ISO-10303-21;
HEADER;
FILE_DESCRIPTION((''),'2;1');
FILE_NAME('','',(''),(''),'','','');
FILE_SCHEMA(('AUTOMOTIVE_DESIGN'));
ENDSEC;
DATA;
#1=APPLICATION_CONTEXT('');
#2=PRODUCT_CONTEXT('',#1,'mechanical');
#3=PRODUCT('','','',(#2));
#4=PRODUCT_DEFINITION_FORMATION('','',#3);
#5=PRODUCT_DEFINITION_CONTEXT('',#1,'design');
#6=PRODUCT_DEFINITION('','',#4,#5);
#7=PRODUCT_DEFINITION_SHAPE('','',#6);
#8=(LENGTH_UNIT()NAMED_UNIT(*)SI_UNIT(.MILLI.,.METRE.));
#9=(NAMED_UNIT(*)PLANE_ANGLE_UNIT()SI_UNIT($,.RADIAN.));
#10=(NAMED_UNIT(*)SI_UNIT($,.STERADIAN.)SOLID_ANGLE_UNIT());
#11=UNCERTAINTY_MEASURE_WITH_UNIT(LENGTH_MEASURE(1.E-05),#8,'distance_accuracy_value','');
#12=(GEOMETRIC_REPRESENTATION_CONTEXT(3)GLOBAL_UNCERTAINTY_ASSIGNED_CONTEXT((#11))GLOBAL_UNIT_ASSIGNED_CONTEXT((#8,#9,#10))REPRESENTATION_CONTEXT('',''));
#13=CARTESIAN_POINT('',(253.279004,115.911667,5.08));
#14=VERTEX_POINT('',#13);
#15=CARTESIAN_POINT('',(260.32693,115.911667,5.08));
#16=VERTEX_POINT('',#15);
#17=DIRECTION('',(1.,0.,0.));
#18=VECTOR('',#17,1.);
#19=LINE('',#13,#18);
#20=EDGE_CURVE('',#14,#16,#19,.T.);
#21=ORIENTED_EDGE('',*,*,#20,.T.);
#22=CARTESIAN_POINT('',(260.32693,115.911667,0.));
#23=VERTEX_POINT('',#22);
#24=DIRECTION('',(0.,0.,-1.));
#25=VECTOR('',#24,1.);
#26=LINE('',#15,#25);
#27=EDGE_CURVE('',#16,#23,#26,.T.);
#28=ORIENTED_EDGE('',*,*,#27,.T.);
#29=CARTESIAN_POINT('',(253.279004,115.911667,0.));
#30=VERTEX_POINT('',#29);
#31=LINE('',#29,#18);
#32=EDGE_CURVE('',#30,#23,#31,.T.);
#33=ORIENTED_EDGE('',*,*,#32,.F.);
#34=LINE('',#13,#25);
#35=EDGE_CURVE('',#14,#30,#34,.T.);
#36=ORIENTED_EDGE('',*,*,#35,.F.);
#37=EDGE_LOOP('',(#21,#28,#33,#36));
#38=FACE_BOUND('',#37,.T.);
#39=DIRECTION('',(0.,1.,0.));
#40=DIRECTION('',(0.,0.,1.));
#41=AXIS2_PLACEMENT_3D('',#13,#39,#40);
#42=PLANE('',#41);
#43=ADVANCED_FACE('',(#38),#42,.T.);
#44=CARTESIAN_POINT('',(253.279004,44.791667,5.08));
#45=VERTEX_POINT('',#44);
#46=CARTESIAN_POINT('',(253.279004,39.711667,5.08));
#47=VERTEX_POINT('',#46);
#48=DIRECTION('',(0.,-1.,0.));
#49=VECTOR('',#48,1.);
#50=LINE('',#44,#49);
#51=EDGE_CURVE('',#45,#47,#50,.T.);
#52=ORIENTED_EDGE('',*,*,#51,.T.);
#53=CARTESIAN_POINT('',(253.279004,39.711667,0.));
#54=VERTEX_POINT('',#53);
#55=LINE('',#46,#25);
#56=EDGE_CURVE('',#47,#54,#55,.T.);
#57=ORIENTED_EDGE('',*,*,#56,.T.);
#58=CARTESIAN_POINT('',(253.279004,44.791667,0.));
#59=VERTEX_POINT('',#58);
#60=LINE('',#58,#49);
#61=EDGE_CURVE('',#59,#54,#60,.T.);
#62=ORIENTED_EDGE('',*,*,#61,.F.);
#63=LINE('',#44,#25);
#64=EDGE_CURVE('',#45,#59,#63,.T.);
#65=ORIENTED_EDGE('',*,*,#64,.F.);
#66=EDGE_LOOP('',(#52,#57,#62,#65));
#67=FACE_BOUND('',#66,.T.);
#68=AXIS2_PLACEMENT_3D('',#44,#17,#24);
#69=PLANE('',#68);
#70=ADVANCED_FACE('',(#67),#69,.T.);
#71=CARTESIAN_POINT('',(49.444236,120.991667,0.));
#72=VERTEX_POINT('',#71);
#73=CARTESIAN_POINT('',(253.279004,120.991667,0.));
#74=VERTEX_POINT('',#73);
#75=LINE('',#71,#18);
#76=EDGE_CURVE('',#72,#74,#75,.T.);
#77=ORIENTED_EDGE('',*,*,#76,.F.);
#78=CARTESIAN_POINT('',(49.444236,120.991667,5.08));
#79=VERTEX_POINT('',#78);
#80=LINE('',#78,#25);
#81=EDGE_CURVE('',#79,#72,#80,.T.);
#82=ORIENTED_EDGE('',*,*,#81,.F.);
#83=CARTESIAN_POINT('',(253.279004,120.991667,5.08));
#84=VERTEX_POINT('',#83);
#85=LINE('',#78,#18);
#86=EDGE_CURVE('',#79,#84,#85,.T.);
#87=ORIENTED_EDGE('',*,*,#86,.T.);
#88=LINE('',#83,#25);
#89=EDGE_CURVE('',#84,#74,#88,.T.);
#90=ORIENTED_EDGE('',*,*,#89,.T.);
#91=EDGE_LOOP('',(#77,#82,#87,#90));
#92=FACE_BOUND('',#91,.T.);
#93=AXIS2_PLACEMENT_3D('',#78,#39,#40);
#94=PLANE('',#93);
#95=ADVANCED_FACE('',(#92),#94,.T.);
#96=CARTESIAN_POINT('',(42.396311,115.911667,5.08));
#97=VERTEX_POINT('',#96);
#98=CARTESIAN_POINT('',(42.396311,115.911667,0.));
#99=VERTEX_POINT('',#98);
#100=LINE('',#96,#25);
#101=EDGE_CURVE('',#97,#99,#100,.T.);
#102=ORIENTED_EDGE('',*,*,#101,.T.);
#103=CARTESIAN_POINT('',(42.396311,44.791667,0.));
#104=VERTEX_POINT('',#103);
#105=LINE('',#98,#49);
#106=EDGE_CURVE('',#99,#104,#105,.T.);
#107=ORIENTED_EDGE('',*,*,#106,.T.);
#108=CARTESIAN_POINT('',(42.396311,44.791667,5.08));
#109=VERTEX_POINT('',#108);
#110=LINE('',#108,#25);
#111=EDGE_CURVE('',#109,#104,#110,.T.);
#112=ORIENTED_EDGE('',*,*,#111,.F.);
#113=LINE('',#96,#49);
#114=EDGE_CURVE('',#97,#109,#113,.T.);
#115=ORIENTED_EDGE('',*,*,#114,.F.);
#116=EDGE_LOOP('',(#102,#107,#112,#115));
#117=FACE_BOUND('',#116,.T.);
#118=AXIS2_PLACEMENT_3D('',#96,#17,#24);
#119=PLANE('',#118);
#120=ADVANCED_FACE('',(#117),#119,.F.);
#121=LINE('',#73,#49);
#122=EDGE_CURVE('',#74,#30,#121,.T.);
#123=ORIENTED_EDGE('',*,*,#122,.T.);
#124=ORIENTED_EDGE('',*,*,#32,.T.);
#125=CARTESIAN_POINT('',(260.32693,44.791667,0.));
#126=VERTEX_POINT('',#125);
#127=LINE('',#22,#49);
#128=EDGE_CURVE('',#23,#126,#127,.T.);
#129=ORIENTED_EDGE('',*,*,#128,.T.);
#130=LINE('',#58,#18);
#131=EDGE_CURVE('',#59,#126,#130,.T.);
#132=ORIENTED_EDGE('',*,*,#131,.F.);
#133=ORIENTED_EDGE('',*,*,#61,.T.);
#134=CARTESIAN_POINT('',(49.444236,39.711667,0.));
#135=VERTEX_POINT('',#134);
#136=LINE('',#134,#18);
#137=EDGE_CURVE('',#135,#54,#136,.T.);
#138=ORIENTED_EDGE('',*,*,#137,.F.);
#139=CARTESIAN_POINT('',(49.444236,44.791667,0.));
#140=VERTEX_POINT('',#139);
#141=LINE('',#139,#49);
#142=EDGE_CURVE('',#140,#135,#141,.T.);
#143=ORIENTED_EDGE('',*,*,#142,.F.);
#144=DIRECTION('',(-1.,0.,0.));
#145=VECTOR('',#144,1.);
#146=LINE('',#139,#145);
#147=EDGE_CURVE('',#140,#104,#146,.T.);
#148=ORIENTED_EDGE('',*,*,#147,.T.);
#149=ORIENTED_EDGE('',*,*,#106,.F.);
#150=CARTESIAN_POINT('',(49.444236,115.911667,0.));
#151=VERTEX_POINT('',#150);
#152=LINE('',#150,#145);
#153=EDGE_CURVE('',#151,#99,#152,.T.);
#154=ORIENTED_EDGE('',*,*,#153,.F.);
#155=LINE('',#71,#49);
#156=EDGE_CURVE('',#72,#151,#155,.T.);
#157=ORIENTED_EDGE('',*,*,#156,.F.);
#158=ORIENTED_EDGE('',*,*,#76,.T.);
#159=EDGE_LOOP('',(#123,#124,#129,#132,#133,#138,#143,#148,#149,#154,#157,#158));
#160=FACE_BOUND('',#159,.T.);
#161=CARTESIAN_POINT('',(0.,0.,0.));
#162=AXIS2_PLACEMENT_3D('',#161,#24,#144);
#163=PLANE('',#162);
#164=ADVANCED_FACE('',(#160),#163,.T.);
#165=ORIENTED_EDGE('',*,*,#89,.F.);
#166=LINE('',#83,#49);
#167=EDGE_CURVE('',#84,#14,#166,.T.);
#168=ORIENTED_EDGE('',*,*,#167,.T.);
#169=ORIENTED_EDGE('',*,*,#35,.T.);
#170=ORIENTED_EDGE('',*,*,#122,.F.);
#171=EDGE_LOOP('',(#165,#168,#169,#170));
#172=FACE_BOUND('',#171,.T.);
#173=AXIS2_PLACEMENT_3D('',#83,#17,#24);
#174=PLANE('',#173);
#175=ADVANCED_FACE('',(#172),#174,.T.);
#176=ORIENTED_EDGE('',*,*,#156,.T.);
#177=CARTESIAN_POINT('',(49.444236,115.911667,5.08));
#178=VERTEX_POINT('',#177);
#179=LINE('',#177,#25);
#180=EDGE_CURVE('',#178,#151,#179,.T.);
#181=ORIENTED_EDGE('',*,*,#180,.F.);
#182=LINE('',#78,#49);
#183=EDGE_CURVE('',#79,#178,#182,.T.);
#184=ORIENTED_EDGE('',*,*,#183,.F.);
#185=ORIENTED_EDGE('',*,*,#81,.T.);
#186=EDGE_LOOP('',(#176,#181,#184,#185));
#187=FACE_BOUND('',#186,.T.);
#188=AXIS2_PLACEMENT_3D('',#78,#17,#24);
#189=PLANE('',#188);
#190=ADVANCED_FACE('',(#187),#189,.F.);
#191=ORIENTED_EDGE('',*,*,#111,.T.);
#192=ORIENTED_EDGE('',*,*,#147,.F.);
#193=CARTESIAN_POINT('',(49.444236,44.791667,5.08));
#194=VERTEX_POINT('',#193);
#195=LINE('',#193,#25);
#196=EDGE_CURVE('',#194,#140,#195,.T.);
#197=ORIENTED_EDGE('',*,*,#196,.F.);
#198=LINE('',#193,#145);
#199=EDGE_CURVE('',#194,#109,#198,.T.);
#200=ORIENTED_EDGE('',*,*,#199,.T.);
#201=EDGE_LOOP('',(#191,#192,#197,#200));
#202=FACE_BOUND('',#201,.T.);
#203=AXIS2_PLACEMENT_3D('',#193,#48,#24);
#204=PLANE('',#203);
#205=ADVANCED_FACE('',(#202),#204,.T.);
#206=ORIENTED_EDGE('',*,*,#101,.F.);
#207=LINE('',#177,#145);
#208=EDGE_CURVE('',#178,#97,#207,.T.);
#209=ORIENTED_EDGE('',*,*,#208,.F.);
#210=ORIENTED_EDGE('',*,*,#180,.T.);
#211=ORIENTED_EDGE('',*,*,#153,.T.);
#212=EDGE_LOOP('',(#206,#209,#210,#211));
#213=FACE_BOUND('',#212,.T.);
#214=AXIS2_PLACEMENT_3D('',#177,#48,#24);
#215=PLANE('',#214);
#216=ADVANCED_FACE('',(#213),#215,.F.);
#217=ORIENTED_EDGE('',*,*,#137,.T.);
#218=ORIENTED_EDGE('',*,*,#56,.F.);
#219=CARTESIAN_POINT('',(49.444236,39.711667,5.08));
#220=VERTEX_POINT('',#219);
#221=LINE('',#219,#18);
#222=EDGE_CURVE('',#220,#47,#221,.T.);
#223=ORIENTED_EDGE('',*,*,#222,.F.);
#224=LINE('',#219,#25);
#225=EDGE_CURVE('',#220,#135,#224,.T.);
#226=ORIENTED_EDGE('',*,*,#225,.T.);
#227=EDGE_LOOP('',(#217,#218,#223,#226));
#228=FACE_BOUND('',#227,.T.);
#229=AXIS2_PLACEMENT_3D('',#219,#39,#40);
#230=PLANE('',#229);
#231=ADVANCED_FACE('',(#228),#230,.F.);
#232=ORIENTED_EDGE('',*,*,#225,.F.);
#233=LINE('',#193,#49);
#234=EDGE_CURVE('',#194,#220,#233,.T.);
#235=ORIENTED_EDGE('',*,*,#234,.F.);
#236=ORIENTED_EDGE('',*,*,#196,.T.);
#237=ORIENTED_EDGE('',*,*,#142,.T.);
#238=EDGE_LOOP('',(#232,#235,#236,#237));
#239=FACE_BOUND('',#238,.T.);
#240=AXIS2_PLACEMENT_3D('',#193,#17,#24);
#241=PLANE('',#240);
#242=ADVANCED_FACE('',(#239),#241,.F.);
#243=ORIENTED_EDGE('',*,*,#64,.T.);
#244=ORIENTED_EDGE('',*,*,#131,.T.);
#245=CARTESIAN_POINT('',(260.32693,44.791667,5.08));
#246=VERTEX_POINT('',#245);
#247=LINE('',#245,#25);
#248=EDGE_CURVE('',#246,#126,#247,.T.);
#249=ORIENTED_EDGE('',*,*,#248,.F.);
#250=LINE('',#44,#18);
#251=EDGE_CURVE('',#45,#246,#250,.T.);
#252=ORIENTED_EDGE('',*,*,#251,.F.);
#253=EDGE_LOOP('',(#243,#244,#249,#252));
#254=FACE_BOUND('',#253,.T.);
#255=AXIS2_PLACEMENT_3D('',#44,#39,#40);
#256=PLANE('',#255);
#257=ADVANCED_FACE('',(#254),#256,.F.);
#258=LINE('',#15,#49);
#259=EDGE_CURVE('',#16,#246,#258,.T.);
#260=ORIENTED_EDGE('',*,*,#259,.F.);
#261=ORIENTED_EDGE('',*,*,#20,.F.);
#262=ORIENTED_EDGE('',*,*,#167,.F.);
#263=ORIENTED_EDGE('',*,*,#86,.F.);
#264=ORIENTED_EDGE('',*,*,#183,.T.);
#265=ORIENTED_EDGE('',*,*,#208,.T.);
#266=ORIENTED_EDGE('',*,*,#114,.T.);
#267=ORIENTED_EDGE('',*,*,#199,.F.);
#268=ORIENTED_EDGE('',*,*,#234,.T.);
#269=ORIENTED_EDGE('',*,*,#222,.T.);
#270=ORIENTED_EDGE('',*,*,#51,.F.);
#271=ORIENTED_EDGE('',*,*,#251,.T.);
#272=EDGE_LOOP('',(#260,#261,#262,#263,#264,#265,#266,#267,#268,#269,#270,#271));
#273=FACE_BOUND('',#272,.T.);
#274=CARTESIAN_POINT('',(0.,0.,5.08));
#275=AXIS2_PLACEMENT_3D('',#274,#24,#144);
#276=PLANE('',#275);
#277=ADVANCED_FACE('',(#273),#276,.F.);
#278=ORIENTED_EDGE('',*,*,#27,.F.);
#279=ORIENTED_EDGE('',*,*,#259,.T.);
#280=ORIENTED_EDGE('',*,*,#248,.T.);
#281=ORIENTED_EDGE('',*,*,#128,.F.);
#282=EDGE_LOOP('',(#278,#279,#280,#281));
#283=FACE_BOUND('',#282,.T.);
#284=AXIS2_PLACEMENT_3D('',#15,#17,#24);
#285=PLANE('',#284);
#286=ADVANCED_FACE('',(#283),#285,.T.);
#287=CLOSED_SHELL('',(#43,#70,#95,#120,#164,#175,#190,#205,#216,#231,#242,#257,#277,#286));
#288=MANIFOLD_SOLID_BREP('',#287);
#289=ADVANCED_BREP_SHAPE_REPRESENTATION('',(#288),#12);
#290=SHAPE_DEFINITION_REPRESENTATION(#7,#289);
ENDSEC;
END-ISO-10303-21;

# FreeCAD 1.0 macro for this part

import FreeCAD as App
import Part
import Sketcher
Q = App.Units.Quantity


def add_polygon(sketch, points):
    """Adds a closed chain of lines whose ends are joined by coincident constraints."""
    first, n = sketch.GeometryCount, len(points)
    for a, b in zip(points, points[1:] + points[:1]):
        sketch.addGeometry(Part.LineSegment(App.Vector(*a, 0), App.Vector(*b, 0)), False)
    for i in range(n):
        sketch.addConstraint(Sketcher.Constraint("Coincident", first + i, 2, first + (i + 1) % n, 1))

doc = App.newDocument("Part")
body = doc.addObject("PartDesign::Body", "Body")

# Sketch on XY plane
sketch1 = body.newObject("Sketcher::SketchObject", "Sketch")
sketch1.AttachmentSupport = (doc.getObject("XY_Plane"), [""])
sketch1.MapMode = "FlatFace"
add_polygon(sketch1, [(49, 116), (42, 116), (42, 45), (49, 45), (49, 40), (253, 40), (253, 45), (260, 45), (260, 116), (253, 116), (253, 121), (49, 121)])  # lines 0-11
sketch1.addConstraint([
    Sketcher.Constraint("Horizontal", 0),
    Sketcher.Constraint("Vertical", 1),
    Sketcher.Constraint("Horizontal", 2),
    Sketcher.Constraint("Vertical", 3),
    Sketcher.Constraint("Horizontal", 4),
    Sketcher.Constraint("Vertical", 5),
    Sketcher.Constraint("Horizontal", 6),
    Sketcher.Constraint("Vertical", 7),
    Sketcher.Constraint("Horizontal", 8),
    Sketcher.Constraint("Vertical", 9),
    Sketcher.Constraint("Horizontal", 10),
    Sketcher.Constraint("Vertical", 11),
    Sketcher.Constraint("Horizontal", 2, 2, 5, 2),
    Sketcher.Constraint("Horizontal", 0, 2, 7, 2),
    Sketcher.Constraint("Vertical", 5, 2, 8, 2),
    Sketcher.Constraint("Vertical", 3, 2, 10, 2),
    Sketcher.Constraint("Equal", 2, 6),
    Sketcher.Constraint("Equal", 5, 9),
    Sketcher.Constraint("DistanceY", 1, 2, 1, 1, Q("2.8 in")),
    Sketcher.Constraint("DistanceY", 3, 2, 3, 1, Q("0.2 in")),
    Sketcher.Constraint("DistanceX", 4, 1, 4, 2, Q("203.834768 mm")),
    Sketcher.Constraint("DistanceX", 0, 2, 0, 1, Q("7.047925 mm")),
    Sketcher.Constraint("DistanceX", -1, 1, 0, 2, Q("42.396311 mm")),
    Sketcher.Constraint("DistanceY", -1, 1, 0, 2, Q("115.911667 mm")),
])
pad1 = body.newObject("PartDesign::Pad", "Pad")
pad1.Profile = sketch1
pad1.Length = Q("0.2 in")

doc.recompute()
